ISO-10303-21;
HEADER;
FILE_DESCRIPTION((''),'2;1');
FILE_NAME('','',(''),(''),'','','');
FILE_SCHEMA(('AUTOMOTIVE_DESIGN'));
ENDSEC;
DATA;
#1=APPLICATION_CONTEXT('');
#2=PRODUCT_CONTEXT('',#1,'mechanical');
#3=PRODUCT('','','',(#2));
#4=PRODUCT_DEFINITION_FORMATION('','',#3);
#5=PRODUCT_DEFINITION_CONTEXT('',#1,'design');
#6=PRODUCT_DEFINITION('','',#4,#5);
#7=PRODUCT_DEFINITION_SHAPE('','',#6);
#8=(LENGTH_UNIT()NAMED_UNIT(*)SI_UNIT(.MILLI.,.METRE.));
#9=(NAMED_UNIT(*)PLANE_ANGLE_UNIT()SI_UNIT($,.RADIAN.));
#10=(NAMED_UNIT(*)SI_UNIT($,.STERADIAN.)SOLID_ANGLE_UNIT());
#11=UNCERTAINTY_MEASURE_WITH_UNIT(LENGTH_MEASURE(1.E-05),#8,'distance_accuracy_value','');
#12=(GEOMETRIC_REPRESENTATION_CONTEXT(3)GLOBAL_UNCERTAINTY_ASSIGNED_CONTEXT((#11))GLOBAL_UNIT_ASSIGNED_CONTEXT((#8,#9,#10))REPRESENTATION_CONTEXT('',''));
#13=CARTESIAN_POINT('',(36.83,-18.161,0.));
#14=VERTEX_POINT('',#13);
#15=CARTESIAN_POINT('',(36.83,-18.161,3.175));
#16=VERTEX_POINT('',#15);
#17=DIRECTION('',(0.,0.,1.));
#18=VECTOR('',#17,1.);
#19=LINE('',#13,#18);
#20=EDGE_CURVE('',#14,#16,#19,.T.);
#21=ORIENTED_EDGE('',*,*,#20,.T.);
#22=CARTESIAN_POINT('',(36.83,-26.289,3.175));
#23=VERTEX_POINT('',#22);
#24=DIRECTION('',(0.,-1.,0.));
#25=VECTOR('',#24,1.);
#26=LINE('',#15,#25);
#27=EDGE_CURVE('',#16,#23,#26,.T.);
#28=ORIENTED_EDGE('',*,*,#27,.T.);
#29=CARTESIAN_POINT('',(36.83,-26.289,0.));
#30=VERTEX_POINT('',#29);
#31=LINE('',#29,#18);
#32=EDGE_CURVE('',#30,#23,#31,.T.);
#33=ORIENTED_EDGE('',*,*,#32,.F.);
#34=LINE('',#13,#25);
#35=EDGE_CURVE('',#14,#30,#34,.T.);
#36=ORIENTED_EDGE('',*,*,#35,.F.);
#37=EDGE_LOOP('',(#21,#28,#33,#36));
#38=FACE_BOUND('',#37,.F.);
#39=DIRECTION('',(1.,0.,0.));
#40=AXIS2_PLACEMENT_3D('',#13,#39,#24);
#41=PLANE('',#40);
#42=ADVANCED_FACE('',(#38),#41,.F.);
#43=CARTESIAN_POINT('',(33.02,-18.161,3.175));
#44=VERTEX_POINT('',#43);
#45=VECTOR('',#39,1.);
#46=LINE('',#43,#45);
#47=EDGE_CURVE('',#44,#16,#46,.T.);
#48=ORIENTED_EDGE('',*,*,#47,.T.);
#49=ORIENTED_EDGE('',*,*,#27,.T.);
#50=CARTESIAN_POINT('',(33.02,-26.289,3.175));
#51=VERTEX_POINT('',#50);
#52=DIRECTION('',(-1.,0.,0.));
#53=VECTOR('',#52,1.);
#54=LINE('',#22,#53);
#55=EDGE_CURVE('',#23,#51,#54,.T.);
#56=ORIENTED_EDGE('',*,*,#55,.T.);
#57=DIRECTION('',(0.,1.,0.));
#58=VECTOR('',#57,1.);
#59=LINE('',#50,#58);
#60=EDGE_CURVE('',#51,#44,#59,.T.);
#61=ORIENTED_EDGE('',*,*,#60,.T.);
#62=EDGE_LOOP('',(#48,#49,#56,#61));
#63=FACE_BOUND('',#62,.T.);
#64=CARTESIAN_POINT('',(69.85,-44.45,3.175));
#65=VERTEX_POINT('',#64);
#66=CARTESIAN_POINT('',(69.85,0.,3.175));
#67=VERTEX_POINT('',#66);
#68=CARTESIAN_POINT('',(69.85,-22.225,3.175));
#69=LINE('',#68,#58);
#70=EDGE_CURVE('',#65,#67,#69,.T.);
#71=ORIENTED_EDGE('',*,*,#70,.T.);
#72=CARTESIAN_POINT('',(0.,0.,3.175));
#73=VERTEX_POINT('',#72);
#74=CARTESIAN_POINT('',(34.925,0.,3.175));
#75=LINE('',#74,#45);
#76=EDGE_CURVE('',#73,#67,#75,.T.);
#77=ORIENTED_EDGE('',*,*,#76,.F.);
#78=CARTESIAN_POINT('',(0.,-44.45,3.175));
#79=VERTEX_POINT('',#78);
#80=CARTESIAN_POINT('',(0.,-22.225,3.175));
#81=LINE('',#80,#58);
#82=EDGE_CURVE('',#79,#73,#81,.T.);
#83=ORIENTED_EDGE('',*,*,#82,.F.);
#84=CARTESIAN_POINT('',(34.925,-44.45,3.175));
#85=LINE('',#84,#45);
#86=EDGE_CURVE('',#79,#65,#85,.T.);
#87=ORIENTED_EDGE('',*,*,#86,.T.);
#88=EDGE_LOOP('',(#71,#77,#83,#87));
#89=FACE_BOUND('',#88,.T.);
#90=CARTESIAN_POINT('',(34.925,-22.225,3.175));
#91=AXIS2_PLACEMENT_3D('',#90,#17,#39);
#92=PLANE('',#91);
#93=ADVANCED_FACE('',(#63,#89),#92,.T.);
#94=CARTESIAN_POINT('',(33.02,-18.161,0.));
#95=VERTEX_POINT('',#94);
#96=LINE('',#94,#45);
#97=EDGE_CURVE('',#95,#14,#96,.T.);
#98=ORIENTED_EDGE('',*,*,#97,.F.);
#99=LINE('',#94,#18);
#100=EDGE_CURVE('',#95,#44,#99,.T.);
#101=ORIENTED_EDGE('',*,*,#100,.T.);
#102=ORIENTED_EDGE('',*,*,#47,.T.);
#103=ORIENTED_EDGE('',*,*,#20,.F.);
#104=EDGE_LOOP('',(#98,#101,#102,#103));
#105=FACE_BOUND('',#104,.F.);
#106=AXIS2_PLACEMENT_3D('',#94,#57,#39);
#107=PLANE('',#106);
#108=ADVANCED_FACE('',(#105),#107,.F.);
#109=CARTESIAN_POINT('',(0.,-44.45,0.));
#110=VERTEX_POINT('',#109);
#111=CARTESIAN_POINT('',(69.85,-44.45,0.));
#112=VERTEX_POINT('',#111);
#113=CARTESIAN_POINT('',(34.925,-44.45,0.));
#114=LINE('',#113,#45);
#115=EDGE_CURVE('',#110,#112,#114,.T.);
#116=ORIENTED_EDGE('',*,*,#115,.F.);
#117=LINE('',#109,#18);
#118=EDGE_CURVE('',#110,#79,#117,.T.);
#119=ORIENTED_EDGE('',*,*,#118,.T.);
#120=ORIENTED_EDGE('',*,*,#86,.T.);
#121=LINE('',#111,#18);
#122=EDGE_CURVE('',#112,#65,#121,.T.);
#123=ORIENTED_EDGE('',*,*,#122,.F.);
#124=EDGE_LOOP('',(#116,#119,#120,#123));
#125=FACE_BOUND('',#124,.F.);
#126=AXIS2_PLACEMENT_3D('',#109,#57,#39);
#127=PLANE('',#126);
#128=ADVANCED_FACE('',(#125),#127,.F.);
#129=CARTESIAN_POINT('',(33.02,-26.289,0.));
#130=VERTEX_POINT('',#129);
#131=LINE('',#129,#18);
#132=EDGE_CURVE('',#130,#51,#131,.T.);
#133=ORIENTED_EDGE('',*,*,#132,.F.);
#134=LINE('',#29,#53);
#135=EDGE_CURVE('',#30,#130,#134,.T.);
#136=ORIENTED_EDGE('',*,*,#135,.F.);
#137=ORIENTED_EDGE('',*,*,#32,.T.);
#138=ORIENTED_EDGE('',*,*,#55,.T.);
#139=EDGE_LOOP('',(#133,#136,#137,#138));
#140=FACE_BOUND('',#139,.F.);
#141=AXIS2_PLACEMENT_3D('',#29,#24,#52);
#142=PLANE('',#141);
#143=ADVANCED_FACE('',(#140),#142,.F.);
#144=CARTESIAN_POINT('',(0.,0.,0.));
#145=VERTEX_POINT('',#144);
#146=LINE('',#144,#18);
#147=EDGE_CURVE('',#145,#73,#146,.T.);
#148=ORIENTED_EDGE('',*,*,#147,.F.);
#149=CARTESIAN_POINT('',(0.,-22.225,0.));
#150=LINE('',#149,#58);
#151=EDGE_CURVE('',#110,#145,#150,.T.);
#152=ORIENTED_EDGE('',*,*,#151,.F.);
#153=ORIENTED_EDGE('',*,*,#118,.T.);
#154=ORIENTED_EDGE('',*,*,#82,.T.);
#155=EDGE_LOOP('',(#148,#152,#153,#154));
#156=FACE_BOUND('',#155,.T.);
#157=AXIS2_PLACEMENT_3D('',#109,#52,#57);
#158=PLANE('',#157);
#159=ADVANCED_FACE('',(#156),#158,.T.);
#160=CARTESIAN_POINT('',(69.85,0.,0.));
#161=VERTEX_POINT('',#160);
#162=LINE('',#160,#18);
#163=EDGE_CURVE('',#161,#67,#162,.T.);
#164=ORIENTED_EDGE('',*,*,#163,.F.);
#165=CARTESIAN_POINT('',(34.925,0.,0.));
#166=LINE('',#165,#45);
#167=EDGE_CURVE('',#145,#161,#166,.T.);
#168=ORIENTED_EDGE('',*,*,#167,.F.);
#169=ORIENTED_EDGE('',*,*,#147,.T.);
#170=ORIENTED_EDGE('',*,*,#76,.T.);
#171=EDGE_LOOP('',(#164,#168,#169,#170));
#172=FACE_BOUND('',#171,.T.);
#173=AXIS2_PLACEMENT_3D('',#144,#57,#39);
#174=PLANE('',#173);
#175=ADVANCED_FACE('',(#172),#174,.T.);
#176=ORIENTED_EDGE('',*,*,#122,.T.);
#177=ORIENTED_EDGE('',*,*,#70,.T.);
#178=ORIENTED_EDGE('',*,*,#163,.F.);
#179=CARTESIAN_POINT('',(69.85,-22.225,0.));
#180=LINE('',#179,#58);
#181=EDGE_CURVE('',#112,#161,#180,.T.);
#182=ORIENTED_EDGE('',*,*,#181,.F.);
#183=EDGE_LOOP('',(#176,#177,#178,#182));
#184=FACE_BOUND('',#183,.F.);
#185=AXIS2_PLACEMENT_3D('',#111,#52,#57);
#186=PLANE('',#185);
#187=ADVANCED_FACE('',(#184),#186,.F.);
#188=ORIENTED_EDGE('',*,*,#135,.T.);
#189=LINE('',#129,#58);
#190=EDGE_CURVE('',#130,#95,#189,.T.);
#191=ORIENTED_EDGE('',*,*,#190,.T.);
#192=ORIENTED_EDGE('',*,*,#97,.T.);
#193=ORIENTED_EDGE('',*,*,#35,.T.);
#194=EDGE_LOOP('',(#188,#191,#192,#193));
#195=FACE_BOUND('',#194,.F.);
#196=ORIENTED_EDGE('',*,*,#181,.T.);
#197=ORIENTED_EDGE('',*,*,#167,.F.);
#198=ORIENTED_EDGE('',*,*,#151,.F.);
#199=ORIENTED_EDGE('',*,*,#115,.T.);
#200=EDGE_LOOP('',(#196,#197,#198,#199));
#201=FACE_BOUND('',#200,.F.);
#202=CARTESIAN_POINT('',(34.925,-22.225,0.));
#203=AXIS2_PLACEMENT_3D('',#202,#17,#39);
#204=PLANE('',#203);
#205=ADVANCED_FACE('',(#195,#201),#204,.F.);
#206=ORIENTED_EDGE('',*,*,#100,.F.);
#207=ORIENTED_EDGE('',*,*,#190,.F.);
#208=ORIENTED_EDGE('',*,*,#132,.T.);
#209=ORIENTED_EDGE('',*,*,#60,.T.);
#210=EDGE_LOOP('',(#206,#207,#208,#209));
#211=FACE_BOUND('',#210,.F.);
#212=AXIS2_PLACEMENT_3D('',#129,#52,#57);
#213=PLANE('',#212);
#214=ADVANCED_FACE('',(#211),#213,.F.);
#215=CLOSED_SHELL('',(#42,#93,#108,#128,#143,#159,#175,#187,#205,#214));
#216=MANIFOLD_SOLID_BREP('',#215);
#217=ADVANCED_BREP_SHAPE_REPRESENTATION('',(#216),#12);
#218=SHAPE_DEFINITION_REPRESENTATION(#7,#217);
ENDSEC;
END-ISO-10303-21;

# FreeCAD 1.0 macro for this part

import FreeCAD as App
import Part
import Sketcher
from FreeCAD import Vector
Q = App.Units.Quantity


def add_polygon(sketch, points):
    """Adds a closed chain of lines whose ends are joined by coincident constraints."""
    first, n = sketch.GeometryCount, len(points)
    for a, b in zip(points, points[1:] + points[:1]):
        sketch.addGeometry(Part.LineSegment(App.Vector(*a, 0), App.Vector(*b, 0)), False)
    for i in range(n):
        sketch.addConstraint(Sketcher.Constraint("Coincident", first + i, 2, first + (i + 1) % n, 1))

doc = App.newDocument("Part")
body = doc.addObject("PartDesign::Body", "Body")

# Sketch on XY plane
sketch1 = doc.addObject("Sketcher::SketchObject", "Sketch")
body.addObject(sketch1)
sketch1.AttachmentSupport = (doc.XY_Plane, [""])
sketch1.MapMode = "FlatFace"
add_polygon(sketch1, [(0, 0), (0, -44), (70, -44), (70, 0)])  # lines 0-3
sketch1.addConstraint(Sketcher.Constraint("Vertical", 0))
sketch1.addConstraint(Sketcher.Constraint("Horizontal", 1))
sketch1.addConstraint(Sketcher.Constraint("Vertical", 2))
sketch1.addConstraint(Sketcher.Constraint("Horizontal", 3))
sketch1.addConstraint(Sketcher.Constraint("Coincident", 3, 2, -1, 1))
sketch1.addConstraint(Sketcher.Constraint("DistanceX", 1, 1, 1, 2, Q("2.75 in")))
sketch1.addConstraint(Sketcher.Constraint("DistanceY", 0, 2, 0, 1, Q("1.75 in")))
pad1 = doc.addObject("PartDesign::Pad", "Pad")
body.addObject(pad1)
pad1.Profile = sketch1
pad1.Length = Q("0.125 in")

# Sketch on XY plane
sketch2 = doc.addObject("Sketcher::SketchObject", "Sketch001")
body.addObject(sketch2)
sketch2.AttachmentSupport = (doc.XY_Plane, [""])
sketch2.MapMode = "FlatFace"
add_polygon(sketch2, [(36.8, -18.2), (36.8, -26.3), (33, -26.3), (33, -18.2)])  # lines 0-3
sketch2.addConstraint(Sketcher.Constraint("Vertical", 0))
sketch2.addConstraint(Sketcher.Constraint("Horizontal", 1))
sketch2.addConstraint(Sketcher.Constraint("Vertical", 2))
sketch2.addConstraint(Sketcher.Constraint("Horizontal", 3))
sketch2.addConstraint(Sketcher.Constraint("DistanceX", 1, 2, 1, 1, Q("0.15 in")))
sketch2.addConstraint(Sketcher.Constraint("DistanceY", 0, 2, 0, 1, Q("0.32 in")))
sketch2.addConstraint(Sketcher.Constraint("DistanceX", -1, 1, 1, 2, Q("1.3 in")))
sketch2.addConstraint(Sketcher.Constraint("DistanceY", 0, 2, -1, 1, Q("1.035 in")))
pocket1 = doc.addObject("PartDesign::Pocket", "Pocket")
body.addObject(pocket1)
pocket1.Profile = sketch2
pocket1.Type = "ThroughAll"
pocket1.Reversed = True

doc.recompute()
